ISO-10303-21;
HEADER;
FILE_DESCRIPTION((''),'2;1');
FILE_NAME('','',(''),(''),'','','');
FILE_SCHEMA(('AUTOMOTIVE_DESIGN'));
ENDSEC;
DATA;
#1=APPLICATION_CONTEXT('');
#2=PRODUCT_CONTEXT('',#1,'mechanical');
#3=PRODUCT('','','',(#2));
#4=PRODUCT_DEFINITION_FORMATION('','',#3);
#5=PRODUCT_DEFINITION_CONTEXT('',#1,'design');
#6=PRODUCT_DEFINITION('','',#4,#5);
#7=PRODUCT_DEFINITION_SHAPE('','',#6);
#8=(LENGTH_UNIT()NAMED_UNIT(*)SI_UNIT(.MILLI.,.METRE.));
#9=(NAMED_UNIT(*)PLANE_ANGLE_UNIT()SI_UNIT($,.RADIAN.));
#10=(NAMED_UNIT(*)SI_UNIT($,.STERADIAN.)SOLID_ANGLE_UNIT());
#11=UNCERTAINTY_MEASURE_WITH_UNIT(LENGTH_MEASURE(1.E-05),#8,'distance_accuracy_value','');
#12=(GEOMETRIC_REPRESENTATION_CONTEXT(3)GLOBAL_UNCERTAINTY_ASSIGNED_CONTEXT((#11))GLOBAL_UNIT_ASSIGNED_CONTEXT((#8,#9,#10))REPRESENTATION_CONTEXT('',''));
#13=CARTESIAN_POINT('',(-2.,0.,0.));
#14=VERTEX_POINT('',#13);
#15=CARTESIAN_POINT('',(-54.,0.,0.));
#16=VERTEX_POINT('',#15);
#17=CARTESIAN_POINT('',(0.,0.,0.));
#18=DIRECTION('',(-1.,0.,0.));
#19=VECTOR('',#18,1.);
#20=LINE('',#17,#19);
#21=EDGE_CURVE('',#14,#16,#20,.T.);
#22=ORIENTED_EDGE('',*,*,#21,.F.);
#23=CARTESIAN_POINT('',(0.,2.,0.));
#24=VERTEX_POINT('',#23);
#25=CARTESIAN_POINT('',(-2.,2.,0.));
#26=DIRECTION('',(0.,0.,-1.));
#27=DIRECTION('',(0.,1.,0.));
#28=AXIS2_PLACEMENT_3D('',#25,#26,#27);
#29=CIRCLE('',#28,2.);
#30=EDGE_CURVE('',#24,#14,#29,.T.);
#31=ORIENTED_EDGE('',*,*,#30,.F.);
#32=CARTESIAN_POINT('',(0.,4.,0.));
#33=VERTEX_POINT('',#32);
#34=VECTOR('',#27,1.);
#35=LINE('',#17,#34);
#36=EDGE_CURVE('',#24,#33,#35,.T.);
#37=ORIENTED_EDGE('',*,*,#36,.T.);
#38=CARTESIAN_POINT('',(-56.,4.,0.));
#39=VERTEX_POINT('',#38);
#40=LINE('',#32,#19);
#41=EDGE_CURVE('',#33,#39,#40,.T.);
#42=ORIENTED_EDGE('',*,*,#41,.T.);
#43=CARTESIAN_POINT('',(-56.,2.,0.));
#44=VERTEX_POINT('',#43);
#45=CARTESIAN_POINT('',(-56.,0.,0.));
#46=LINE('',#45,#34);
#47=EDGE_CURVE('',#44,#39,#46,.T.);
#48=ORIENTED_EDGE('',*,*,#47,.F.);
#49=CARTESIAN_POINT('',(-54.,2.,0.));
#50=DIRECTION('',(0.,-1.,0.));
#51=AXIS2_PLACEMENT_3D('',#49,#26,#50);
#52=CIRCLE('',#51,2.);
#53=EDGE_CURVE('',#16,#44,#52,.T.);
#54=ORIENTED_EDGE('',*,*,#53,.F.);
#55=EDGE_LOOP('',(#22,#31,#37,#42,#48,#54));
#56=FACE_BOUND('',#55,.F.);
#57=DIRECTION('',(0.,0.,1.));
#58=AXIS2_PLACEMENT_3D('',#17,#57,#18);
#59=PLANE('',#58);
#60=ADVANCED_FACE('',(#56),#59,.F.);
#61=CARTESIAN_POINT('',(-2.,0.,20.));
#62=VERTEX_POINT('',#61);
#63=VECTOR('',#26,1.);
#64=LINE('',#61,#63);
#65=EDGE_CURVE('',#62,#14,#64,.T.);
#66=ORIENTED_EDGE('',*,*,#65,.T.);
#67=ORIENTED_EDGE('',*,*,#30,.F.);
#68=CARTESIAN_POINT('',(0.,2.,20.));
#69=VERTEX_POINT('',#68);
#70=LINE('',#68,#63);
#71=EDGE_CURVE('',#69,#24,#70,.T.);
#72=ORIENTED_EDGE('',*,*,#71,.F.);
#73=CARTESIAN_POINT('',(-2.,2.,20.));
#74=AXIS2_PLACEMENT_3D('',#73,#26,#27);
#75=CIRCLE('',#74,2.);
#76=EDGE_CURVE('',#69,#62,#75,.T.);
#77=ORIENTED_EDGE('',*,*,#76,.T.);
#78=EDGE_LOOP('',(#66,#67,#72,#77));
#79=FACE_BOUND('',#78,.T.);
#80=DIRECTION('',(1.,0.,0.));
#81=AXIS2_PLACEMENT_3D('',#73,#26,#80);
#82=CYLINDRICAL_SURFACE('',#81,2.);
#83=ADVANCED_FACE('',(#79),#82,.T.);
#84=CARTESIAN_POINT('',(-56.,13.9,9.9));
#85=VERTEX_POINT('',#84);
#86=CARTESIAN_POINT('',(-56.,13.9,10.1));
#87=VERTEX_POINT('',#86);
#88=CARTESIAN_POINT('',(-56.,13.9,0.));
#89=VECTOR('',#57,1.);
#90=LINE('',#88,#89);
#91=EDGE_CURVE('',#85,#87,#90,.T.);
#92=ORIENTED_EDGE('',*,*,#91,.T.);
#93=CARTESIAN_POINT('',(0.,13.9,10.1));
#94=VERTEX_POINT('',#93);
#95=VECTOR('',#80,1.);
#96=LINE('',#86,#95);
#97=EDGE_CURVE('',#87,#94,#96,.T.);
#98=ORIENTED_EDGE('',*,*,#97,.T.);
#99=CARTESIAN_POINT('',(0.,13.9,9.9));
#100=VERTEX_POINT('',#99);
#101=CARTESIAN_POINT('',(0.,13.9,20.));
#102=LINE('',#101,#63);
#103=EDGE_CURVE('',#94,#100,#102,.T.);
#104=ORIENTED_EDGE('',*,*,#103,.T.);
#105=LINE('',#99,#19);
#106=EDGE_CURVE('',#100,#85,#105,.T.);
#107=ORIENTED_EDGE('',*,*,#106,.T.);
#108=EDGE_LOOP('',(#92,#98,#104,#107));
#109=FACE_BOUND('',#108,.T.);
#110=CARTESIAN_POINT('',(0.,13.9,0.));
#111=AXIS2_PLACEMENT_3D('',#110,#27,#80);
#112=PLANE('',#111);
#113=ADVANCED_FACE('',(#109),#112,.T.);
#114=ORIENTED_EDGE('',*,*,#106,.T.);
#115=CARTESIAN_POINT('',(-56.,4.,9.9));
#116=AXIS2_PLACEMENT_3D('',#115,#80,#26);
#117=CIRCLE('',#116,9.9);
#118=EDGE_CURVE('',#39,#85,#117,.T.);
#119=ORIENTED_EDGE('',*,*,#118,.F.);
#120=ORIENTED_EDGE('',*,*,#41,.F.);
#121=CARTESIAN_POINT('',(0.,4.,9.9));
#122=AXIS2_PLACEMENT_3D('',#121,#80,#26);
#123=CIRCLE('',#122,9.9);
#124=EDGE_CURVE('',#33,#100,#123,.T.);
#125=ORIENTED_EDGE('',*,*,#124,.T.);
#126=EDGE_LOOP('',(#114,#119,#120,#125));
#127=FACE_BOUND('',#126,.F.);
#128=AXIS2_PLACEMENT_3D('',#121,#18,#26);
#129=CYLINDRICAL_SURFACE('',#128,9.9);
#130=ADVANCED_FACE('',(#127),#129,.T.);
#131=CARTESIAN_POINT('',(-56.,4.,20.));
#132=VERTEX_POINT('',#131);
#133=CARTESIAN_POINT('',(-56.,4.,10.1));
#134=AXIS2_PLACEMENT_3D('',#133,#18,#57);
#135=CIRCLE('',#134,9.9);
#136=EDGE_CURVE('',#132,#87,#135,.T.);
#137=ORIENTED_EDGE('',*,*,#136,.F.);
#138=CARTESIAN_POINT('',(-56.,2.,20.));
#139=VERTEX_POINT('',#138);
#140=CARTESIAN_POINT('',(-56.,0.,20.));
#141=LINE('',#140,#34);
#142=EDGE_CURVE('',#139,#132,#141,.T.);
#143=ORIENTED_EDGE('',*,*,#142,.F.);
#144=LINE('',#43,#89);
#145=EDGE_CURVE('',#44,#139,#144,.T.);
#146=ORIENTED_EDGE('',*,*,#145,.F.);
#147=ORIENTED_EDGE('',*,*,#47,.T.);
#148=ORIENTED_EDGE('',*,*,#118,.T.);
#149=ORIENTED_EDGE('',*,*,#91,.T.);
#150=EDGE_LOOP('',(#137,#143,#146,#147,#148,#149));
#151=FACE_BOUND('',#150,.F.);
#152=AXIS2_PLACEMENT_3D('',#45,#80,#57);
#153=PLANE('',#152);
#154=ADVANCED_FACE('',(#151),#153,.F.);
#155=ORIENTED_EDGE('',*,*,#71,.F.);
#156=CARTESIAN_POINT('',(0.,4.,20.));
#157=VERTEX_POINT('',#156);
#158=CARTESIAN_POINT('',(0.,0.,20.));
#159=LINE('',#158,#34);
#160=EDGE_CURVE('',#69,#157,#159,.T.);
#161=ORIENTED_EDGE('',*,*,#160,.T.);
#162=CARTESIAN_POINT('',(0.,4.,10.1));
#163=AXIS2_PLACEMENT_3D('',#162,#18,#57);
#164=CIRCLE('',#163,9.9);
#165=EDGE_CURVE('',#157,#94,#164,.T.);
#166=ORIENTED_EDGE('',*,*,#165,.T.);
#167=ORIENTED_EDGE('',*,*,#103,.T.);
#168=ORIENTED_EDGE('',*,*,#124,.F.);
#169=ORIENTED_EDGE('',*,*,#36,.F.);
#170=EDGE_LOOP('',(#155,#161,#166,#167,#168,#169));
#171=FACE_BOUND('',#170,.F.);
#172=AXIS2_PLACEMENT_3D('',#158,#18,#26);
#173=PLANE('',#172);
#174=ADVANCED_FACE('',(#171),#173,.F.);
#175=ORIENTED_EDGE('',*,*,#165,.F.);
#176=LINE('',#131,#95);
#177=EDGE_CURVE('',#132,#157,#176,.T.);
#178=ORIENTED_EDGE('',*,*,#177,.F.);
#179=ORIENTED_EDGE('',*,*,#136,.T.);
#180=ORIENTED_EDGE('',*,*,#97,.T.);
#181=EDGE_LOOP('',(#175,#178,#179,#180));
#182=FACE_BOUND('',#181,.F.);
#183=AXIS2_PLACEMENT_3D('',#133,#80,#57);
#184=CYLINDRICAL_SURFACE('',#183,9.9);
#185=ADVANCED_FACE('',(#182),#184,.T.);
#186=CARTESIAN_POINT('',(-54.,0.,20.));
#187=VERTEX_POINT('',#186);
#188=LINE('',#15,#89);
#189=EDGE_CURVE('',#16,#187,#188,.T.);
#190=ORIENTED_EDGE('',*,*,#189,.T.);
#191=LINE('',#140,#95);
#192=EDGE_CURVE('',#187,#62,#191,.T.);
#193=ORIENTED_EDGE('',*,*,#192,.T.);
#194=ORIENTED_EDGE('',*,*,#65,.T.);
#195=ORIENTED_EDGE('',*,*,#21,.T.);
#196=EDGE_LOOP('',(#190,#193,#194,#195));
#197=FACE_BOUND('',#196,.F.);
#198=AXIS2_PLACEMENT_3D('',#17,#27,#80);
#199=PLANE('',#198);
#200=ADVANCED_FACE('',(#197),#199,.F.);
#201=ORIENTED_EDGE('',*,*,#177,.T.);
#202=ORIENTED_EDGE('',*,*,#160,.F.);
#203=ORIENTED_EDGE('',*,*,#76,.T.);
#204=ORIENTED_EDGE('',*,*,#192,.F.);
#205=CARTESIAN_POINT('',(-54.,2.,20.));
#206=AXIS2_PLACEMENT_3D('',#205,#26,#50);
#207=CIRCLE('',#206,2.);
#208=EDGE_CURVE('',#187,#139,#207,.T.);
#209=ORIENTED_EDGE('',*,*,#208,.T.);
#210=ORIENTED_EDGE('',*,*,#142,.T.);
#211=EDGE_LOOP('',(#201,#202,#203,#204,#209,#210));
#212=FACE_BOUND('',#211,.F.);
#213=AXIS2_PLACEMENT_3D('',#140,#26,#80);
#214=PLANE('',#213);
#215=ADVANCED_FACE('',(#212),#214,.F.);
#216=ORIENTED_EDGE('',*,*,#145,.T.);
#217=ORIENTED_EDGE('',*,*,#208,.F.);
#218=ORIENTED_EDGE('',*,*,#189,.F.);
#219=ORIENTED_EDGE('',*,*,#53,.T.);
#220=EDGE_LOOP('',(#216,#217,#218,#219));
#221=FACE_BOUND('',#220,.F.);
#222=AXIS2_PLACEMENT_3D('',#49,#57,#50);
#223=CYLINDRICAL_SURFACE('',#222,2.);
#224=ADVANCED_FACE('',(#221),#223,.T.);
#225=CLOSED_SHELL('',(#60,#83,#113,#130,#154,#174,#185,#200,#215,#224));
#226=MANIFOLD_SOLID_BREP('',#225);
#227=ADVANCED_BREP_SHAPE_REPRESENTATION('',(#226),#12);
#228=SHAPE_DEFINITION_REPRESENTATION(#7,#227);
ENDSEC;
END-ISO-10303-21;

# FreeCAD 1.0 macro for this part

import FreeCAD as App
import Part
import Sketcher
from FreeCAD import Vector


def edges_at(feature, points):
    """Names of the edges that pass closest to the given points."""
    edges = feature.Shape.Edges
    near = lambda p: min(range(len(edges)), key=lambda i: edges[i].distToShape(Part.Vertex(*p))[0])
    return sorted({f"Edge{near(p) + 1}" for p in points})

doc = App.newDocument("Part")
params = doc.addObject("Spreadsheet::Sheet", "Params")
for row, (alias, value) in enumerate([
    ("sketch1_width", "56 mm"),
    ("sketch1_height", "20 mm"),
    ("pad1_length", "13.9 mm"),
    ("fillet_radius", "9.9 mm"),
    ("fillet2_radius", "2 mm"),
], start=1):
    params.set(f"A{row}", alias)
    params.set(f"B{row}", "=" + value)
    params.setAlias(f"B{row}", alias)

body = doc.addObject("PartDesign::Body", "Body")

sketch1 = doc.addObject("Sketcher::SketchObject", "Sketch")
body.addObject(sketch1)
sketch1.AttachmentSupport = (doc.XZ_Plane, [""])
sketch1.MapMode = "FlatFace"
sketch1.addGeometry(Part.LineSegment(Vector(0, 20, 0), Vector(0, 0, 0)), False)
sketch1.addGeometry(Part.LineSegment(Vector(0, 0, 0), Vector(-56, 0, 0)), False)
sketch1.addGeometry(Part.LineSegment(Vector(-56, 0, 0), Vector(-56, 20, 0)), False)
sketch1.addGeometry(Part.LineSegment(Vector(-56, 20, 0), Vector(0, 20, 0)), False)
sketch1.addConstraint(Sketcher.Constraint("Coincident", 0, 2, 1, 1))
sketch1.addConstraint(Sketcher.Constraint("Coincident", 1, 2, 2, 1))
sketch1.addConstraint(Sketcher.Constraint("Coincident", 2, 2, 3, 1))
sketch1.addConstraint(Sketcher.Constraint("Coincident", 3, 2, 0, 1))
sketch1.addConstraint(Sketcher.Constraint("Vertical", 0))
sketch1.addConstraint(Sketcher.Constraint("Horizontal", 1))
sketch1.addConstraint(Sketcher.Constraint("Vertical", 2))
sketch1.addConstraint(Sketcher.Constraint("Horizontal", 3))
sketch1.addConstraint(Sketcher.Constraint("Coincident", 0, 2, -1, 1))
sketch1.addConstraint(Sketcher.Constraint("DistanceX", 1, 2, 1, 1, 56.0))
sketch1.addConstraint(Sketcher.Constraint("DistanceY", 0, 2, 0, 1, 20.0))
sketch1.setExpression("Constraints[9]", "Params.sketch1_width")
sketch1.setExpression("Constraints[10]", "Params.sketch1_height")
pad1 = doc.addObject("PartDesign::Pad", "Pad")
body.addObject(pad1)
pad1.Profile = sketch1
pad1.setExpression("Length", "Params.pad1_length")
pad1.Reversed = True
doc.recompute()

fillet = doc.addObject("PartDesign::Fillet", "Fillet")
body.addObject(fillet)
fillet.Base = (pad1, edges_at(pad1, [(-28, 13.9, 20), (-28, 13.9, 0)]))
fillet.setExpression("Radius", "Params.fillet_radius")
doc.recompute()

fillet2 = doc.addObject("PartDesign::Fillet", "Fillet001")
body.addObject(fillet2)
fillet2.Base = (fillet, edges_at(fillet, [(0, 0, 10), (-56, 0, 10)]))
fillet2.setExpression("Radius", "Params.fillet2_radius")

doc.recompute()
